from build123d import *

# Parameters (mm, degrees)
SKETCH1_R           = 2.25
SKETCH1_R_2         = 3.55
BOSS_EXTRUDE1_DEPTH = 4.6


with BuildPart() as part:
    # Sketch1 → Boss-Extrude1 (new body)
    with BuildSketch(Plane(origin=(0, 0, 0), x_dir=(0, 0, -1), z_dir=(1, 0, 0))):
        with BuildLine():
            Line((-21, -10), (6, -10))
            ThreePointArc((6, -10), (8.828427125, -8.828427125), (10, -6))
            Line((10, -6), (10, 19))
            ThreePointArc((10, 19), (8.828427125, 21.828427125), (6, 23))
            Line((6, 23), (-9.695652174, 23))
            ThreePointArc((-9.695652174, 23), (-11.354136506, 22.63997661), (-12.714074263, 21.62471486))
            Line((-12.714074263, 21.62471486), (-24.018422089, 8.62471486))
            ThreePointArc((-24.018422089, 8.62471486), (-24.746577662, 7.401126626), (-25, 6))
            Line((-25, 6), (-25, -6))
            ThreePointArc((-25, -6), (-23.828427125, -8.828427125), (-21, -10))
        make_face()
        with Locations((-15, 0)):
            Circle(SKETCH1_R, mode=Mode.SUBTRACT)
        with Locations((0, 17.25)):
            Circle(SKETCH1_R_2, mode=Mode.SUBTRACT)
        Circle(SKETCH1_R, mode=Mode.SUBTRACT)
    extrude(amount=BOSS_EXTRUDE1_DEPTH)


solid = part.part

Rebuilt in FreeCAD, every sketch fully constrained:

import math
import FreeCAD as App
import Part
import Sketcher

doc = App.newDocument("Part")
body = doc.addObject("PartDesign::Body", "Body")

# Sketch on YZ plane
sketch1 = body.newObject("Sketcher::SketchObject", "Sketch")
sketch1.AttachmentSupport = (doc.getObject("YZ_Plane"), [""])
sketch1.MapMode = "FlatFace"
sketch1.addGeometry(Part.LineSegment(App.Vector(-10, 21, 0), App.Vector(-10, -6, 0)), False)
sketch1.addGeometry(Part.ArcOfCircle(Part.Circle(App.Vector(-6, -6, 0), App.Vector(0, 0, 1), 4), math.radians(180), math.radians(270)), False)
sketch1.addGeometry(Part.LineSegment(App.Vector(-6, -10, 0), App.Vector(19, -10, 0)), False)
sketch1.addGeometry(Part.ArcOfCircle(Part.Circle(App.Vector(19, -6, 0), App.Vector(0, 0, 1), 4), math.radians(-90), math.radians(0)), False)
sketch1.addGeometry(Part.LineSegment(App.Vector(23, -6, 0), App.Vector(23, 9.695652, 0)), False)
sketch1.addGeometry(Part.ArcOfCircle(Part.Circle(App.Vector(19, 9.695652, 0), App.Vector(0, 0, 1), 4), math.radians(0), math.radians(48.990913)), False)
sketch1.addGeometry(Part.LineSegment(App.Vector(21.624715, 12.714074, 0), App.Vector(8.624715, 24.018422, 0)), False)
sketch1.addGeometry(Part.ArcOfCircle(Part.Circle(App.Vector(6, 21, 0), App.Vector(0, 0, 1), 4), math.radians(48.990913), math.radians(90)), False)
sketch1.addGeometry(Part.LineSegment(App.Vector(6, 25, 0), App.Vector(-6, 25, 0)), False)
sketch1.addGeometry(Part.ArcOfCircle(Part.Circle(App.Vector(-6, 21, 0), App.Vector(0, 0, 1), 4), math.radians(90), math.radians(180)), False)
sketch1.addGeometry(Part.Circle(App.Vector(0, 15, 0), App.Vector(0, 0, 1), 2.25), False)
sketch1.addGeometry(Part.Circle(App.Vector(0, 0, 0), App.Vector(0, 0, 1), 2.25), False)
sketch1.addGeometry(Part.Circle(App.Vector(17.25, 0, 0), App.Vector(0, 0, 1), 3.55), False)
sketch1.addConstraint(Sketcher.Constraint("Tangent", 0, 2, 1, 1))
sketch1.addConstraint(Sketcher.Constraint("Tangent", 1, 2, 2, 1))
sketch1.addConstraint(Sketcher.Constraint("Tangent", 2, 2, 3, 1))
sketch1.addConstraint(Sketcher.Constraint("Tangent", 3, 2, 4, 1))
sketch1.addConstraint(Sketcher.Constraint("Tangent", 4, 2, 5, 1))
sketch1.addConstraint(Sketcher.Constraint("Tangent", 5, 2, 6, 1))
sketch1.addConstraint(Sketcher.Constraint("Tangent", 6, 2, 7, 1))
sketch1.addConstraint(Sketcher.Constraint("Tangent", 7, 2, 8, 1))
sketch1.addConstraint(Sketcher.Constraint("Tangent", 8, 2, 9, 1))
sketch1.addConstraint(Sketcher.Constraint("Tangent", 9, 2, 0, 1))
sketch1.addConstraint(Sketcher.Constraint("Vertical", 0))
sketch1.addConstraint(Sketcher.Constraint("Horizontal", 2))
sketch1.addConstraint(Sketcher.Constraint("Vertical", 4))
sketch1.addConstraint(Sketcher.Constraint("Horizontal", 8))
sketch1.addConstraint(Sketcher.Constraint("Coincident", 11, 3, -1, 1))
sketch1.addConstraint(Sketcher.Constraint("Equal", 1, 3))
sketch1.addConstraint(Sketcher.Constraint("Equal", 3, 5))
sketch1.addConstraint(Sketcher.Constraint("Equal", 5, 7))
sketch1.addConstraint(Sketcher.Constraint("Equal", 7, 9))
sketch1.addConstraint(Sketcher.Constraint("Equal", 10, 11))
sketch1.addConstraint(Sketcher.Constraint("PointOnObject", 10, 3, -2))
sketch1.addConstraint(Sketcher.Constraint("PointOnObject", 12, 3, -1))
sketch1.addConstraint(Sketcher.Constraint("Radius", 1, 4.0))
sketch1.addConstraint(Sketcher.Constraint("Diameter", 10, 4.5))
sketch1.addConstraint(Sketcher.Constraint("Diameter", 12, 7.1))
sketch1.addConstraint(Sketcher.Constraint("DistanceX", 2, 1, 2, 2, 25.0))
sketch1.addConstraint(Sketcher.Constraint("DistanceX", 8, 2, 8, 1, 12.0))
sketch1.addConstraint(Sketcher.Constraint("DistanceY", 0, 2, 0, 1, 27.0))
sketch1.addConstraint(Sketcher.Constraint("DistanceX", 1, 3, -1, 1, 6.0))
sketch1.addConstraint(Sketcher.Constraint("DistanceY", 1, 3, -1, 1, 6.0))
sketch1.addConstraint(Sketcher.Constraint("DistanceY", -1, 1, 10, 3, 15.0))
sketch1.addConstraint(Sketcher.Constraint("DistanceX", -1, 1, 12, 3, 17.25))
sketch1.addConstraint(Sketcher.Constraint("DistanceY", 4, 1, 4, 2, 15.695652))
pad1 = body.newObject("PartDesign::Pad", "Pad")
pad1.Profile = sketch1
pad1.Length = 4.6

doc.recompute()
